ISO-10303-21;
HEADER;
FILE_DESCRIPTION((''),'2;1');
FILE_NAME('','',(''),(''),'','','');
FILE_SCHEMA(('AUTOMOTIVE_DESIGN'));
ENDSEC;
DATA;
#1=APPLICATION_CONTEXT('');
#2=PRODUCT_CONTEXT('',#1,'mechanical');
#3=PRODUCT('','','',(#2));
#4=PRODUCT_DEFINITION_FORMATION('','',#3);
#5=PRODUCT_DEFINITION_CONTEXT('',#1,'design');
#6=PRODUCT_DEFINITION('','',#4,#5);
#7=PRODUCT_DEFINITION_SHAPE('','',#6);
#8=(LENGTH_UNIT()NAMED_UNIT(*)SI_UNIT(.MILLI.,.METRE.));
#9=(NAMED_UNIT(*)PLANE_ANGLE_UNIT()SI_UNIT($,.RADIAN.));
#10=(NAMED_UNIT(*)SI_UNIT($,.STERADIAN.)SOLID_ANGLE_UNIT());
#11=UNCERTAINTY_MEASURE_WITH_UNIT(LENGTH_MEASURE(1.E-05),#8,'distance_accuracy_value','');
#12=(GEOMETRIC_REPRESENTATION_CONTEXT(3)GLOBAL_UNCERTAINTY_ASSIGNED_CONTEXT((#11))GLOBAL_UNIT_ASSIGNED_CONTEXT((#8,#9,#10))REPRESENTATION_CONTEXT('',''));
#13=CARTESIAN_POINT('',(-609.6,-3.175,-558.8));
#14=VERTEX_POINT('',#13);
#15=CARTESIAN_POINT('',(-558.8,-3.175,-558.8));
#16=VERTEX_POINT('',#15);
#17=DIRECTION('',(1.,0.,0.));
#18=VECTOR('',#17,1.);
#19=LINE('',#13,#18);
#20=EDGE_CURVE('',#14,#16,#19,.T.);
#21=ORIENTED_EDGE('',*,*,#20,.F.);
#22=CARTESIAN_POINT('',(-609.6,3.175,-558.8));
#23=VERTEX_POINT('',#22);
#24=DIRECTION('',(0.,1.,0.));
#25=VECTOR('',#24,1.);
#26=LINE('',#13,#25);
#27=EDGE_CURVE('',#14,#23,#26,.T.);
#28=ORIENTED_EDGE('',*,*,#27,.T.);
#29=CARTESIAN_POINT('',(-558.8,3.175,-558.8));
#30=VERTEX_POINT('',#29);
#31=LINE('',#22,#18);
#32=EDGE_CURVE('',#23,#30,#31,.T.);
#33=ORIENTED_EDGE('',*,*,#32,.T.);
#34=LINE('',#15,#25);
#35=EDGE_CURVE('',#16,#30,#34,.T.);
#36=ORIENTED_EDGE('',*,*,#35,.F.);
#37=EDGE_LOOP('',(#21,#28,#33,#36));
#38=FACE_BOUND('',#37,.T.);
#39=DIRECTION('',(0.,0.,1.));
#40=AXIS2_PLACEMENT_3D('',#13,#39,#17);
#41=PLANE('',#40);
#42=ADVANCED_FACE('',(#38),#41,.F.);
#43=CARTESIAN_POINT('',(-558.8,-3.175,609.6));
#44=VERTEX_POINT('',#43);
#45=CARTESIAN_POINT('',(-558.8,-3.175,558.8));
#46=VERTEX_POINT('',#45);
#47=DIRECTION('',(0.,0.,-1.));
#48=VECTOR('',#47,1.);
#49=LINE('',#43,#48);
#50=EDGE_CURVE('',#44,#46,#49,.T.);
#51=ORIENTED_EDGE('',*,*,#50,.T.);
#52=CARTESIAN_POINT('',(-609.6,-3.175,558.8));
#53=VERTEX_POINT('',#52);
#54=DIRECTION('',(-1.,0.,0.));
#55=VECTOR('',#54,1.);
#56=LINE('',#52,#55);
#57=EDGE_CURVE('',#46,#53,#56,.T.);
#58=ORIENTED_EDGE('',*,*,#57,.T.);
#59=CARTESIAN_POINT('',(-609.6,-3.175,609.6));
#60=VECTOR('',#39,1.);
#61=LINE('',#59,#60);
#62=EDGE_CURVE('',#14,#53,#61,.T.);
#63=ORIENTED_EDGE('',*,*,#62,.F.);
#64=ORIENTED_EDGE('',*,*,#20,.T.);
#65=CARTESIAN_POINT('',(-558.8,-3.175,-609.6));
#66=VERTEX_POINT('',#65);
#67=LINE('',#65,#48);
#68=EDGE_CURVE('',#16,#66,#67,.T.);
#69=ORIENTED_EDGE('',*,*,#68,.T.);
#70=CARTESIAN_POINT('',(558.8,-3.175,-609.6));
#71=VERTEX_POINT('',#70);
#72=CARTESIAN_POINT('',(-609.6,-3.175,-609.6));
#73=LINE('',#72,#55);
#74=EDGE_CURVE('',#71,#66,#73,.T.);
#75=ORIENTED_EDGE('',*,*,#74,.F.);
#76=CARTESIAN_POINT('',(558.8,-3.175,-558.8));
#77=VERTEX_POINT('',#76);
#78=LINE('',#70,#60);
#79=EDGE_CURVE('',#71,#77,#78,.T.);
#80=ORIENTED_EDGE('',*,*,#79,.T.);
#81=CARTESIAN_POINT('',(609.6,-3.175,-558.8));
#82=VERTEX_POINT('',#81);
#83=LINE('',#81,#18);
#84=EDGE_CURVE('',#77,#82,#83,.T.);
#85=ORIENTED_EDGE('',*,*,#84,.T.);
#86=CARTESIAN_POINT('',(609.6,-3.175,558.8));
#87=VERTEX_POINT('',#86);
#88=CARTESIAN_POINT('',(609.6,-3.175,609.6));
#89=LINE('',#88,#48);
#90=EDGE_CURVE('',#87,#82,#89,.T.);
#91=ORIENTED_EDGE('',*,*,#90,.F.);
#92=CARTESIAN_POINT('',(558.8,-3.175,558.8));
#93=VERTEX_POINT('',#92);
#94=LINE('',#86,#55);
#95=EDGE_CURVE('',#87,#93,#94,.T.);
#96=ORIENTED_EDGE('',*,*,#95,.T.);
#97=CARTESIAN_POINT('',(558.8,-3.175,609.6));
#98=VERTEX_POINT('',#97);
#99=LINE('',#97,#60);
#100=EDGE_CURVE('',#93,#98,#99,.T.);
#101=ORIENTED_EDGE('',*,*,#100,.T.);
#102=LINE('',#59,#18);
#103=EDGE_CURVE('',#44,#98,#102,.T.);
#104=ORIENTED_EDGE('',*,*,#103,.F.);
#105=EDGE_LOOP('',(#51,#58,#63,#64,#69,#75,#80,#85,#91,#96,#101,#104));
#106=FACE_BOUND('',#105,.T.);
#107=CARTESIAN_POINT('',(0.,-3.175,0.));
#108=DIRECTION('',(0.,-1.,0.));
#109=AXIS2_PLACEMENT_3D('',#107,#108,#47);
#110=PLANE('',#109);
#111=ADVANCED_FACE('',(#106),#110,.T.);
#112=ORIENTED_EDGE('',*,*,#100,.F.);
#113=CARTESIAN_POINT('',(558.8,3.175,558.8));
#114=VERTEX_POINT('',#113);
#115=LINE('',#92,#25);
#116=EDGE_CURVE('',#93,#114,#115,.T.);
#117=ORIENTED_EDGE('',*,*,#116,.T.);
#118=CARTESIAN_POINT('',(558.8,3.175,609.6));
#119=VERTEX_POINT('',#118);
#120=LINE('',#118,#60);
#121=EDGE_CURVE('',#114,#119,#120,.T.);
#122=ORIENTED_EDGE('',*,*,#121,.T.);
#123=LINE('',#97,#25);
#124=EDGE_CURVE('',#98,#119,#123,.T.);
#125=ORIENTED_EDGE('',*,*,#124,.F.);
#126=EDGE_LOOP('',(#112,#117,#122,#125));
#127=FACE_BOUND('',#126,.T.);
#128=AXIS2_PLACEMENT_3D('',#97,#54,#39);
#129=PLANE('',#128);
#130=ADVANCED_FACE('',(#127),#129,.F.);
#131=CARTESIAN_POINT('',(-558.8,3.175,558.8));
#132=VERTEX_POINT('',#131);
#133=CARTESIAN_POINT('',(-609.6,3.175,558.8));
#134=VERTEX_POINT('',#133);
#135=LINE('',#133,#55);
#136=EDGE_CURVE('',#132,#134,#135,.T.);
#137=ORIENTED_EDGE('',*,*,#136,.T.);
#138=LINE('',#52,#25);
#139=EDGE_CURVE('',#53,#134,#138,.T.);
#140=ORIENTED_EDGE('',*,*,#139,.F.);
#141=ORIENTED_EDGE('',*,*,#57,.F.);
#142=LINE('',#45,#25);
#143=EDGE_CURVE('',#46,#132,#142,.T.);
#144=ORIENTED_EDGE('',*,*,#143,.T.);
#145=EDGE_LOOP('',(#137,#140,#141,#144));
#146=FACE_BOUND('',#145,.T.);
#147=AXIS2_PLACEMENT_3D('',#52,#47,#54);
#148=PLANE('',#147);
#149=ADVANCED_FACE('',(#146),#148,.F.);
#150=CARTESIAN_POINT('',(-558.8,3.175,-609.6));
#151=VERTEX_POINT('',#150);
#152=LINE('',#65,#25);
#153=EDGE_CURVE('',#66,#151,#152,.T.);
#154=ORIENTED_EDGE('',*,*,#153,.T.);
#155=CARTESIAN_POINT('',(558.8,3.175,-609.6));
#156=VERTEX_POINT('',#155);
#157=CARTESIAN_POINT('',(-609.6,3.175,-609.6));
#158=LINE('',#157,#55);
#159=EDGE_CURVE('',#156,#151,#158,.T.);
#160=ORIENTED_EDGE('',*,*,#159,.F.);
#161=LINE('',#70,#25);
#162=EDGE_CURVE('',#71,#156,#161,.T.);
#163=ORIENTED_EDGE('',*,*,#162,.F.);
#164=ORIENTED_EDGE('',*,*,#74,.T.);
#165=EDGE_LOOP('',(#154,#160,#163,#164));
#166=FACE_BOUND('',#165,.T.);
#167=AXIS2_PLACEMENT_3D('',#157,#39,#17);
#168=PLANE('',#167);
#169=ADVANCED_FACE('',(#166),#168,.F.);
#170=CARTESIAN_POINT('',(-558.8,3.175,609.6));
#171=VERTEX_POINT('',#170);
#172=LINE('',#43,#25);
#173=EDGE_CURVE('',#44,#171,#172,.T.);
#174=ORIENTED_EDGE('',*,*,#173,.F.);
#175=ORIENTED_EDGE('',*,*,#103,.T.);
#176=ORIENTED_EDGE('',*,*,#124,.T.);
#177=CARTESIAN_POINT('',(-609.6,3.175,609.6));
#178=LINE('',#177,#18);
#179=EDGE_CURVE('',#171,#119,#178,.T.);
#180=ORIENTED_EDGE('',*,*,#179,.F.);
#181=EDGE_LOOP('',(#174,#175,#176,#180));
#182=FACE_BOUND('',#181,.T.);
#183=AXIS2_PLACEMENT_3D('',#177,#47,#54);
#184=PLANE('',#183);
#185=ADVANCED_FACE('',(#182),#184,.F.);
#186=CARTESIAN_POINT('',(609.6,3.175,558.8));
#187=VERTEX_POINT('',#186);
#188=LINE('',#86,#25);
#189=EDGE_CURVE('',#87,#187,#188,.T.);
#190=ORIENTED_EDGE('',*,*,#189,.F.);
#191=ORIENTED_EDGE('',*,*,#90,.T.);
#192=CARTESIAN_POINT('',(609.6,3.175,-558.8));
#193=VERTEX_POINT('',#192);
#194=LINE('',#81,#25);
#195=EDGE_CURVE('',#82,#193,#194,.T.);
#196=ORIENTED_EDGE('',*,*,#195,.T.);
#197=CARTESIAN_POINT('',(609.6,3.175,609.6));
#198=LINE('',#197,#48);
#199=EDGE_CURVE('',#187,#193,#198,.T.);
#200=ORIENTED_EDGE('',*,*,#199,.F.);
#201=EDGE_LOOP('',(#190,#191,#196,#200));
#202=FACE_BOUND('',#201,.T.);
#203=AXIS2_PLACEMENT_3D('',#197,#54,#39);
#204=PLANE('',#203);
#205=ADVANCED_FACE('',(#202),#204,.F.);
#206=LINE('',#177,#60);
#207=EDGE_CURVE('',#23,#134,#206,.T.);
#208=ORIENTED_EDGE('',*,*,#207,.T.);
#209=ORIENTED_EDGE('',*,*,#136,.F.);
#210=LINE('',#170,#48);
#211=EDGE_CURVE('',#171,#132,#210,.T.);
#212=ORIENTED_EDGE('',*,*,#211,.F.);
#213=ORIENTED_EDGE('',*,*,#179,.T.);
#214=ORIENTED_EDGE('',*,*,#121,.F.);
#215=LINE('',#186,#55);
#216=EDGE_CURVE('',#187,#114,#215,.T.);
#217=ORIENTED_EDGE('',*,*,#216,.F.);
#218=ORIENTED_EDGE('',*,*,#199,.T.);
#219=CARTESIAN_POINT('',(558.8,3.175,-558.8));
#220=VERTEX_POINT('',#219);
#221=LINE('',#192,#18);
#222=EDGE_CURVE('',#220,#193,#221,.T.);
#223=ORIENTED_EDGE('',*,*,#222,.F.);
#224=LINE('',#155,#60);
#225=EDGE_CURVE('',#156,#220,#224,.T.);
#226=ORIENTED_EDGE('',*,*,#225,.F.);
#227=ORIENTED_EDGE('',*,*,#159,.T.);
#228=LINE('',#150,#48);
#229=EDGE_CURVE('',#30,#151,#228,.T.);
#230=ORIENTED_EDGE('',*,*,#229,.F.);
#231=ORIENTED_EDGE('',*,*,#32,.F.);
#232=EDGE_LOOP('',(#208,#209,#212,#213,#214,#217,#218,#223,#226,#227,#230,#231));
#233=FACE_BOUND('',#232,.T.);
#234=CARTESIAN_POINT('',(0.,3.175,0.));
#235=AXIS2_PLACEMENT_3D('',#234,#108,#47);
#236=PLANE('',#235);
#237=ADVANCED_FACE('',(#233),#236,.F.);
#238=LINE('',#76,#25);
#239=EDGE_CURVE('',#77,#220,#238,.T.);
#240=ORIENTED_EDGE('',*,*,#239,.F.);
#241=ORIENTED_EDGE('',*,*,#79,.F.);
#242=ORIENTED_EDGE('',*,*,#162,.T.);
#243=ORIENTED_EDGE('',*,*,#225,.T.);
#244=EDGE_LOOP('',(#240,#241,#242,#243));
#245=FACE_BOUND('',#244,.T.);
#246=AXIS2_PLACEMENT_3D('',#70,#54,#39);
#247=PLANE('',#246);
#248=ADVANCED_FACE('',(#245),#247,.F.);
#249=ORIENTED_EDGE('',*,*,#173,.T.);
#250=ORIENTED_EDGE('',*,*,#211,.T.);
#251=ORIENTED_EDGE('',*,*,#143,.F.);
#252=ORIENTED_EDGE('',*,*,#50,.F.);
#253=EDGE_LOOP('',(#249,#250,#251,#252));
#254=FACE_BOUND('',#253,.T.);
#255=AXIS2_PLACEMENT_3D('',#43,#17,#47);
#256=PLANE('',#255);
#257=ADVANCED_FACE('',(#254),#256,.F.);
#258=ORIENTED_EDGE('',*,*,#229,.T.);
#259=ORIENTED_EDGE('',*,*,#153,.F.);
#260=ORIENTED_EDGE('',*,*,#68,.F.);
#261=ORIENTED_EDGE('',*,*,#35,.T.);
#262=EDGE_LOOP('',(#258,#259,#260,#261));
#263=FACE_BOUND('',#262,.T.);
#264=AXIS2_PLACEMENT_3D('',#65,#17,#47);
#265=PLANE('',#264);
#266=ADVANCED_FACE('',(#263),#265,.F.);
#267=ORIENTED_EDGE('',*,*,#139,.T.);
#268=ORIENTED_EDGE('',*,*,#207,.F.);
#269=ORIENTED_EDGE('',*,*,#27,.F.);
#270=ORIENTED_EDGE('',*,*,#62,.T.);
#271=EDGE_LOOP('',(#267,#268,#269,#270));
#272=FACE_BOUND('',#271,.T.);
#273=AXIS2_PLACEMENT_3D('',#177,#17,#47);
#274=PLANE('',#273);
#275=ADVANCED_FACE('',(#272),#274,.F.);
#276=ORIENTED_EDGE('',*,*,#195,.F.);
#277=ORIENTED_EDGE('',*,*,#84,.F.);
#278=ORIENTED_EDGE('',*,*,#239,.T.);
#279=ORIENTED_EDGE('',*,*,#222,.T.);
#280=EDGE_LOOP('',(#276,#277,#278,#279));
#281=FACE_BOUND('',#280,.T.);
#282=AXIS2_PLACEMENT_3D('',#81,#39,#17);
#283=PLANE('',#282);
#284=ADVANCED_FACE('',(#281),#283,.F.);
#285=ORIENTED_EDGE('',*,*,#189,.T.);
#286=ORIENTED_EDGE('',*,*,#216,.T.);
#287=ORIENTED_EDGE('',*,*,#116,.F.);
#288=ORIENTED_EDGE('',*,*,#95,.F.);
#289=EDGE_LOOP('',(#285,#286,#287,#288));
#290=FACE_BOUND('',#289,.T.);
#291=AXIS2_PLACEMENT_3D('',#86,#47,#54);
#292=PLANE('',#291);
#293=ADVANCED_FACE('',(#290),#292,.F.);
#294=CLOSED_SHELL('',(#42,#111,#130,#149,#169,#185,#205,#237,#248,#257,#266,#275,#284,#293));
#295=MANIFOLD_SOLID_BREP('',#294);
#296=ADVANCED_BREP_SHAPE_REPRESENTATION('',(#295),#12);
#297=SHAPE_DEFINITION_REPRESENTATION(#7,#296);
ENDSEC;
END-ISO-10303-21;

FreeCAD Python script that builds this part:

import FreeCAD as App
import Part
import Sketcher
from FreeCAD import Vector
Q = App.Units.Quantity


def add_polygon(sketch, points):
    """Adds a closed chain of lines whose ends are joined by coincident constraints."""
    first, n = sketch.GeometryCount, len(points)
    for a, b in zip(points, points[1:] + points[:1]):
        sketch.addGeometry(Part.LineSegment(App.Vector(*a, 0), App.Vector(*b, 0)), False)
    for i in range(n):
        sketch.addConstraint(Sketcher.Constraint("Coincident", first + i, 2, first + (i + 1) % n, 1))

doc = App.newDocument("Part")
body = doc.addObject("PartDesign::Body", "Body")

sketch1 = body.newObject("Sketcher::SketchObject", "Sketch")
sketch1.AttachmentSupport = (doc.getObject("XZ_Plane"), [""])
sketch1.MapMode = "FlatFace"
add_polygon(sketch1, [(-610, -610), (-610, 610), (610, 610), (610, -610)])
sketch1.addConstraint([
    Sketcher.Constraint("Vertical", 0),
    Sketcher.Constraint("Horizontal", 1),
    Sketcher.Constraint("Vertical", 2),
    Sketcher.Constraint("Horizontal", 3),
    Sketcher.Constraint("Symmetric", 0, 2, 2, 2, -1, 1),
    Sketcher.Constraint("Equal", 3, 0),
    Sketcher.Constraint("DistanceX", 1, 1, 1, 2, Q("48 in")),
])
pad1 = body.newObject("PartDesign::Pad", "Pad")
pad1.Profile = sketch1
pad1.Length = Q("0.25 in")
pad1.Midplane = True

sketch2 = body.newObject("Sketcher::SketchObject", "Sketch001")
sketch2.AttachmentSupport = (doc.getObject("XZ_Plane"), [""])
sketch2.MapMode = "FlatFace"
sketch2.AttachmentOffset = App.Placement(Vector(0, 0, -0.125 * 25.4), App.Rotation())
add_polygon(sketch2, [(-610, -610), (-610, -559), (-559, -559), (-559, -610)])
add_polygon(sketch2, [(559, -610), (559, -559), (610, -559), (610, -610)])
add_polygon(sketch2, [(559, 559), (559, 610), (610, 610), (610, 559)])
add_polygon(sketch2, [(-610, 559), (-610, 610), (-559, 610), (-559, 559)])
sketch2.addConstraint([
    Sketcher.Constraint("Vertical", 0),
    Sketcher.Constraint("Horizontal", 1),
    Sketcher.Constraint("Vertical", 2),
    Sketcher.Constraint("Horizontal", 3),
    Sketcher.Constraint("Vertical", 4),
    Sketcher.Constraint("Horizontal", 5),
    Sketcher.Constraint("Vertical", 6),
    Sketcher.Constraint("Horizontal", 7),
    Sketcher.Constraint("Vertical", 8),
    Sketcher.Constraint("Horizontal", 9),
    Sketcher.Constraint("Vertical", 10),
    Sketcher.Constraint("Horizontal", 11),
    Sketcher.Constraint("Vertical", 12),
    Sketcher.Constraint("Horizontal", 13),
    Sketcher.Constraint("Vertical", 14),
    Sketcher.Constraint("Horizontal", 15),
    Sketcher.Constraint("Symmetric", 2, 2, 8, 2, -1, 1),
    Sketcher.Constraint("Symmetric", 0, 2, 10, 2, -1, 1),
    Sketcher.Constraint("Symmetric", 6, 2, 12, 2, -1, 1),
    Sketcher.Constraint("Symmetric", 4, 2, 14, 2, -1, 1),
    Sketcher.Constraint("Symmetric", 1, 2, 4, 2, -2),
    Sketcher.Constraint("Symmetric", 3, 2, 6, 2, -2),
    Sketcher.Constraint("Equal", 15, 0),
    Sketcher.Constraint("DistanceX", 1, 1, 1, 2, Q("2 in")),
    Sketcher.Constraint("DistanceX", 0, 2, -1, 1, Q("24 in")),
    Sketcher.Constraint("DistanceY", 0, 2, -1, 1, Q("22 in")),
])
pocket1 = body.newObject("PartDesign::Pocket", "Pocket")
pocket1.Profile = sketch2
pocket1.Type = "ThroughAll"
pocket1.Reversed = True

doc.recompute()
